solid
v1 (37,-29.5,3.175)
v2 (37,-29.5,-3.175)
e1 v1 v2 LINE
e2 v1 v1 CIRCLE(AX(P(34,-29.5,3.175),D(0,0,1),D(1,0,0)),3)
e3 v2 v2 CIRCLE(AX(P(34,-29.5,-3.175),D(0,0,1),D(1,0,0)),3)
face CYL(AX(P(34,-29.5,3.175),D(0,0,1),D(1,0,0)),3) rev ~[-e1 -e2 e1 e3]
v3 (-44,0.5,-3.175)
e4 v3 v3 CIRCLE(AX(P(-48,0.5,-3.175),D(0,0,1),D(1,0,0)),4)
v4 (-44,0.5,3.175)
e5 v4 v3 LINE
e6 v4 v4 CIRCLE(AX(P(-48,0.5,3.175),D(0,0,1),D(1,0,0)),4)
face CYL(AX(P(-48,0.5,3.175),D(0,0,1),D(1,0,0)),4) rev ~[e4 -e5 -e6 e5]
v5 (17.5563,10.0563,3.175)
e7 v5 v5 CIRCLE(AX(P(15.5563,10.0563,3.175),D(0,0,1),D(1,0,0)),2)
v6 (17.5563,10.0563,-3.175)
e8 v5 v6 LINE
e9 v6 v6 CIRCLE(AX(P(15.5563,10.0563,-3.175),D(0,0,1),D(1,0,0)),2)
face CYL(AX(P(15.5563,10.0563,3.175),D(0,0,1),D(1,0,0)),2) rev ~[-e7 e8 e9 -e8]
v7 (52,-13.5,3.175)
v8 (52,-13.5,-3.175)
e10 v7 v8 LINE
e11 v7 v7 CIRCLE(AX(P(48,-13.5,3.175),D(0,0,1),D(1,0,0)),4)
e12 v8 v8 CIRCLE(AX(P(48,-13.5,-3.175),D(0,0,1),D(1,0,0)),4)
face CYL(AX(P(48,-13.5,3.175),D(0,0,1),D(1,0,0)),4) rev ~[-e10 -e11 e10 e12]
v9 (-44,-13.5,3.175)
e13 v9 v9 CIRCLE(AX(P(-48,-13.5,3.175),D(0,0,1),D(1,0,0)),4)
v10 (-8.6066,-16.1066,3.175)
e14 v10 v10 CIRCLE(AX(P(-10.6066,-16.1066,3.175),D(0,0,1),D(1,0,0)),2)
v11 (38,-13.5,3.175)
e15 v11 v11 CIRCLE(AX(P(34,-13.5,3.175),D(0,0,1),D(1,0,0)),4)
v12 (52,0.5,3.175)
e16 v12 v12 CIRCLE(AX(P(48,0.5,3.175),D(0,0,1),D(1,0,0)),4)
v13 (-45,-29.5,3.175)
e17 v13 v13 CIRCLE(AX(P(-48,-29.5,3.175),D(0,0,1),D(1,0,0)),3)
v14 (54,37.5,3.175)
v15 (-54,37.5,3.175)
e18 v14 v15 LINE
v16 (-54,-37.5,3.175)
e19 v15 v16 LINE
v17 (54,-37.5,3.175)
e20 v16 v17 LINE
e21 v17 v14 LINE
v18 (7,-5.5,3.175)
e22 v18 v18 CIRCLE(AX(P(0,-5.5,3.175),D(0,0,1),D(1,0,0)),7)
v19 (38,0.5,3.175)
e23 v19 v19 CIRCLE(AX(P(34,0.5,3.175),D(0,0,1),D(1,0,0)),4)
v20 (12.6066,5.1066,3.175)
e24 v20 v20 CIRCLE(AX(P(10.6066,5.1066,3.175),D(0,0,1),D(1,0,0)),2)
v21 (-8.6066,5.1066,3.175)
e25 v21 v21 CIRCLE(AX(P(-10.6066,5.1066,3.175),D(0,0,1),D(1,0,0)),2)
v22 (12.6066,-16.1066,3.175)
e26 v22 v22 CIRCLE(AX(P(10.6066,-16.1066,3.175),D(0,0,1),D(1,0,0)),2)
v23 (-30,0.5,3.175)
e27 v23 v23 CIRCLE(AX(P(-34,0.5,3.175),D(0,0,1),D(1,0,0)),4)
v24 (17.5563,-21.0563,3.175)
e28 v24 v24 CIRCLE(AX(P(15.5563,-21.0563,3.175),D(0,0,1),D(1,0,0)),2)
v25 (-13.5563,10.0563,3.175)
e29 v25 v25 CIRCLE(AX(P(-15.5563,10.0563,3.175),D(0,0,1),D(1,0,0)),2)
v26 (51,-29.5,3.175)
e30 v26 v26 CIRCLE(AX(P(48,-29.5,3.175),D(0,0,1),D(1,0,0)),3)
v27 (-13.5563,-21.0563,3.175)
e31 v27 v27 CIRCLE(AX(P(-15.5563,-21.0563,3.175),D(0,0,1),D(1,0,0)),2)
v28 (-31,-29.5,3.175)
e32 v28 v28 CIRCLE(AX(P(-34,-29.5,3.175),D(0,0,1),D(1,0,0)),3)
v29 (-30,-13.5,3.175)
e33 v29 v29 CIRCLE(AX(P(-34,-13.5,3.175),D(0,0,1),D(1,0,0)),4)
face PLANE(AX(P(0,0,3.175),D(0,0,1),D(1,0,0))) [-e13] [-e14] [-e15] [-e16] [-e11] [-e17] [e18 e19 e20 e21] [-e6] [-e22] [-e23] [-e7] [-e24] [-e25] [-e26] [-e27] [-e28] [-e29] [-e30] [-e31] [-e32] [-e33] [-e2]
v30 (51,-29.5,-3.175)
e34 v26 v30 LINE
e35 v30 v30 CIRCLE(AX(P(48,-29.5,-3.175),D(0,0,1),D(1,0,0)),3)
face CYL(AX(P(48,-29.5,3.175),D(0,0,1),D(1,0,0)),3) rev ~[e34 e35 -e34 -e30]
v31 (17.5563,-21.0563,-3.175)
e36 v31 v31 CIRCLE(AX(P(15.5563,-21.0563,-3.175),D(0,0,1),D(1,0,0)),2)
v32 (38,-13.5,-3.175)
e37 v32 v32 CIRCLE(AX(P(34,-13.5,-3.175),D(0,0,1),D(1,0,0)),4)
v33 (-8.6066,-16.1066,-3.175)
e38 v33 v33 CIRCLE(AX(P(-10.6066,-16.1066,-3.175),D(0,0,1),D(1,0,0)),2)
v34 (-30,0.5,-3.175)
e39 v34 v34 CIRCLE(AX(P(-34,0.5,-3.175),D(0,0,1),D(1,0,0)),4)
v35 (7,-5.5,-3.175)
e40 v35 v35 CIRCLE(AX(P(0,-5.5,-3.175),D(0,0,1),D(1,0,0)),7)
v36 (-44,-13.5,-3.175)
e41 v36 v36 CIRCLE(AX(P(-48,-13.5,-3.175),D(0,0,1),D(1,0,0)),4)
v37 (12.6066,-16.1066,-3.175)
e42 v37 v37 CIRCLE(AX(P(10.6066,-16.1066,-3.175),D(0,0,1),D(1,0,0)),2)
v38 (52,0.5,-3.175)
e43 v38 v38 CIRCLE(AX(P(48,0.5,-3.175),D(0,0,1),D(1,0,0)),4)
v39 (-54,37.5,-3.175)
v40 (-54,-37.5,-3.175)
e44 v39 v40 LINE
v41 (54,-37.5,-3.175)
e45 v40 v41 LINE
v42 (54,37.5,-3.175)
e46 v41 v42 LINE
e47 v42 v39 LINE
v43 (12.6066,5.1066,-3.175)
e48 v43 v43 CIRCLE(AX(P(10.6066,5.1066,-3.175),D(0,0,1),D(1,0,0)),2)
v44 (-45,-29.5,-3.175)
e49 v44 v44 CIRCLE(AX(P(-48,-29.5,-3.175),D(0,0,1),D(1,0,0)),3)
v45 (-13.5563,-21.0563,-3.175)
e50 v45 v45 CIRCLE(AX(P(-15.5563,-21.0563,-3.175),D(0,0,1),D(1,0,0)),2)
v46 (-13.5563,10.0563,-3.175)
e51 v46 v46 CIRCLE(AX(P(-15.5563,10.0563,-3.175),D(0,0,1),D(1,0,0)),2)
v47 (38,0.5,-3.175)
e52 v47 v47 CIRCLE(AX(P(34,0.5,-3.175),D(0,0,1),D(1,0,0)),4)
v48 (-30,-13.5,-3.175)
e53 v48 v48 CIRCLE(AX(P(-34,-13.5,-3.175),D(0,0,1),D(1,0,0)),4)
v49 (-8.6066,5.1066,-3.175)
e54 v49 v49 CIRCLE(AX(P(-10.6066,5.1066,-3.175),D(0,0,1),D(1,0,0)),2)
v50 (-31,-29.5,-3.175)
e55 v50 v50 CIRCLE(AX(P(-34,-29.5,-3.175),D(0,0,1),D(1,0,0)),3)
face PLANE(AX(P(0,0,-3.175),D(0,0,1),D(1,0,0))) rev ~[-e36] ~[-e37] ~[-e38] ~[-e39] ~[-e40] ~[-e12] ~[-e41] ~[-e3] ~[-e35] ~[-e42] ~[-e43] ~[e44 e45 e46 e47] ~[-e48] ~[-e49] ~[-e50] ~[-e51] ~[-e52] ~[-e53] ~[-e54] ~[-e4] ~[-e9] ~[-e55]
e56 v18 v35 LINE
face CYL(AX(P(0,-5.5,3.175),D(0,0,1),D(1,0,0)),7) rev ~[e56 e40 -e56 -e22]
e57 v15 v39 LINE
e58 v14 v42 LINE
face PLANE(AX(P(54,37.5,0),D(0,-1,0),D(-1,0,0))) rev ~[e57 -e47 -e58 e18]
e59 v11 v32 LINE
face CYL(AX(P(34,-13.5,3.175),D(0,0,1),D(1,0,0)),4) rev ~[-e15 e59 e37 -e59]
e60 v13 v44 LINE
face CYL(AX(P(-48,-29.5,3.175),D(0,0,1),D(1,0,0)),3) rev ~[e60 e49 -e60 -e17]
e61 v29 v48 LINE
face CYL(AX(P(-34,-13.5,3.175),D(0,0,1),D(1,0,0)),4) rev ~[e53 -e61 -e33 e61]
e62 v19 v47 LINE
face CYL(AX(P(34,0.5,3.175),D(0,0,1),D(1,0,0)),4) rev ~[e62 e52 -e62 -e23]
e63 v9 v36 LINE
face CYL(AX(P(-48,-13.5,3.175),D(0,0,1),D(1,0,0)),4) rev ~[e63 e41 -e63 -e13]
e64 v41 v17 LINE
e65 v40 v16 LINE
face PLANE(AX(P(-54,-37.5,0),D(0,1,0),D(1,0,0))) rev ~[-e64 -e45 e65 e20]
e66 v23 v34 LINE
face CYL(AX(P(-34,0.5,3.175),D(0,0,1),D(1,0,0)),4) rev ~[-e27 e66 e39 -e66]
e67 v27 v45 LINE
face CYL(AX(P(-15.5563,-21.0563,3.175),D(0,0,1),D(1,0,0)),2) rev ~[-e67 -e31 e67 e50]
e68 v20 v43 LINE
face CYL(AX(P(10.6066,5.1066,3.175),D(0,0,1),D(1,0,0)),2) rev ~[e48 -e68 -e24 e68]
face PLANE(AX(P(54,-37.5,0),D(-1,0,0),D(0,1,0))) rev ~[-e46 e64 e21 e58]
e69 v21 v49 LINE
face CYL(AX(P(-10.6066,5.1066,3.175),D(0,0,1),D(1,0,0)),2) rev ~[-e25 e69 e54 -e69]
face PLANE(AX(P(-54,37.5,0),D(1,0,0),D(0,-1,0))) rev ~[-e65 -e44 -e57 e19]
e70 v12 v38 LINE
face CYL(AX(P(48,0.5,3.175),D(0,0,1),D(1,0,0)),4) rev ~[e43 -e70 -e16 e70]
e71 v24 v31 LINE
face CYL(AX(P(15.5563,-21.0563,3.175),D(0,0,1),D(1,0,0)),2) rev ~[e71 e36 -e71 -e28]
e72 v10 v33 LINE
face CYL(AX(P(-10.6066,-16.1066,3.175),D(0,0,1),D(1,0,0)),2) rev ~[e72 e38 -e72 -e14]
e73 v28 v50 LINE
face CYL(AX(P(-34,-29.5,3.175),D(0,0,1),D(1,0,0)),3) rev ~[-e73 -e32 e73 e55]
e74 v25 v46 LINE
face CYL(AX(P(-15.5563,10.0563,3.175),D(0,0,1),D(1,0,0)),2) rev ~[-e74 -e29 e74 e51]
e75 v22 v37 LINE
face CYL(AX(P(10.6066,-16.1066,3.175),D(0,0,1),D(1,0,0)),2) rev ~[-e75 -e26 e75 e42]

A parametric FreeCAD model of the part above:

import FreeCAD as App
import Part
import Sketcher
Q = App.Units.Quantity


def add_polygon(sketch, points):
    """Adds a closed chain of lines whose ends are joined by coincident constraints."""
    first, n = sketch.GeometryCount, len(points)
    for a, b in zip(points, points[1:] + points[:1]):
        sketch.addGeometry(Part.LineSegment(App.Vector(*a, 0), App.Vector(*b, 0)), False)
    for i in range(n):
        sketch.addConstraint(Sketcher.Constraint("Coincident", first + i, 2, first + (i + 1) % n, 1))

doc = App.newDocument("Part")
params = doc.addObject("Spreadsheet::Sheet", "Params")
for row, (alias, value) in enumerate([
    ("sketch1_width", "108 mm"),
    ("sketch1_height", "75 mm"),
    ("pad1_length", "6.35 mm"),
    ("sketch2_diameter", "14 mm"),
    ("sketch2_diameter2", "4 mm"),
    ("sketch3_diameter", "6 mm"),
    ("sketch3_diameter2", "8 mm"),
], start=1):
    params.set(f"A{row}", alias)
    params.set(f"B{row}", "=" + value)
    params.setAlias(f"B{row}", alias)

body = doc.addObject("PartDesign::Body", "Body")

# Sketch on XY plane
sketch1 = body.newObject("Sketcher::SketchObject", "Sketch")
sketch1.AttachmentSupport = (doc.getObject("XY_Plane"), [""])
sketch1.MapMode = "FlatFace"
add_polygon(sketch1, [(-54, 38), (-54, -38), (54, -38), (54, 38)])  # lines 0-3
sketch1.addConstraint(Sketcher.Constraint("Vertical", 0))
sketch1.addConstraint(Sketcher.Constraint("Horizontal", 1))
sketch1.addConstraint(Sketcher.Constraint("Vertical", 2))
sketch1.addConstraint(Sketcher.Constraint("Horizontal", 3))
sketch1.addConstraint(Sketcher.Constraint("Symmetric", 0, 2, 2, 2, -1, 1))
sketch1.addConstraint(Sketcher.Constraint("DistanceX", 1, 1, 1, 2, Q("108 mm")))
sketch1.addConstraint(Sketcher.Constraint("DistanceY", 0, 2, 0, 1, Q("75 mm")))
sketch1.setExpression("Constraints[9]", "Params.sketch1_width")
sketch1.setExpression("Constraints[10]", "Params.sketch1_height")
pad1 = body.newObject("PartDesign::Pad", "Pad")
pad1.Profile = sketch1
pad1.setExpression("Length", "Params.pad1_length")
pad1.Midplane = True

# Sketch on XY plane
sketch2 = body.newObject("Sketcher::SketchObject", "Sketch001")
sketch2.AttachmentSupport = (doc.getObject("XY_Plane"), [""])
sketch2.MapMode = "FlatFace"
sketch2.AttachmentOffset = App.Placement(App.Vector(0, 0, 3.175), App.Rotation())
sketch2.addGeometry(Part.Circle(App.Vector(0, -5.5, 0), App.Vector(0, 0, 1), 7), False)
sketch2.addGeometry(Part.Circle(App.Vector(-10.6, 5.1, 0), App.Vector(0, 0, 1), 2), False)
sketch2.addGeometry(Part.Circle(App.Vector(-10.6, -16.1, 0), App.Vector(0, 0, 1), 2), False)
sketch2.addGeometry(Part.Circle(App.Vector(10.6, -16.1, 0), App.Vector(0, 0, 1), 2), False)
sketch2.addGeometry(Part.Circle(App.Vector(10.6, 5.1, 0), App.Vector(0, 0, 1), 2), False)
sketch2.addGeometry(Part.Circle(App.Vector(-15.6, 10.1, 0), App.Vector(0, 0, 1), 2), False)
sketch2.addGeometry(Part.Circle(App.Vector(-15.6, -21.1, 0), App.Vector(0, 0, 1), 2), False)
sketch2.addGeometry(Part.Circle(App.Vector(15.6, -21.1, 0), App.Vector(0, 0, 1), 2), False)
sketch2.addGeometry(Part.Circle(App.Vector(15.6, 10.1, 0), App.Vector(0, 0, 1), 2), False)
sketch2.addConstraint(Sketcher.Constraint("Equal", 1, 2))
sketch2.addConstraint(Sketcher.Constraint("Equal", 2, 3))
sketch2.addConstraint(Sketcher.Constraint("Equal", 3, 4))
sketch2.addConstraint(Sketcher.Constraint("Equal", 4, 5))
sketch2.addConstraint(Sketcher.Constraint("Equal", 5, 6))
sketch2.addConstraint(Sketcher.Constraint("Equal", 6, 7))
sketch2.addConstraint(Sketcher.Constraint("Equal", 7, 8))
sketch2.addConstraint(Sketcher.Constraint("Symmetric", 2, 3, 3, 3, -2))
sketch2.addConstraint(Sketcher.Constraint("Symmetric", 1, 3, 4, 3, -2))
sketch2.addConstraint(Sketcher.Constraint("Symmetric", 6, 3, 7, 3, -2))
sketch2.addConstraint(Sketcher.Constraint("Symmetric", 5, 3, 8, 3, -2))
sketch2.addConstraint(Sketcher.Constraint("PointOnObject", 0, 3, -2))
sketch2.addConstraint(Sketcher.Constraint("Vertical", 1, 3, 2, 3))
sketch2.addConstraint(Sketcher.Constraint("Vertical", 5, 3, 6, 3))
sketch2.addConstraint(Sketcher.Constraint("Diameter", 0, Q("14 mm")))
sketch2.addConstraint(Sketcher.Constraint("Diameter", 1, Q("4 mm")))
sketch2.addConstraint(Sketcher.Constraint("DistanceY", 0, 3, -1, 1, Q("5.5 mm")))
sketch2.addConstraint(Sketcher.Constraint("DistanceY", 2, 3, 5, 3, Q("26.163 mm")))
sketch2.addConstraint(Sketcher.Constraint("DistanceX", 5, 3, 4, 3, Q("26.163 mm")))
sketch2.addConstraint(Sketcher.Constraint("DistanceY", 6, 3, 1, 3, Q("26.163 mm")))
sketch2.addConstraint(Sketcher.Constraint("DistanceX", 1, 3, -1, 1, Q("10.6066 mm")))
sketch2.addConstraint(Sketcher.Constraint("DistanceY", -1, 1, 1, 3, Q("5.1066 mm")))
sketch2.addConstraint(Sketcher.Constraint("DistanceY", 2, 3, -1, 1, Q("16.1066 mm")))
sketch2.setExpression("Constraints[14]", "Params.sketch2_diameter")
sketch2.setExpression("Constraints[15]", "Params.sketch2_diameter2")
pocket1 = body.newObject("PartDesign::Pocket", "Pocket")
pocket1.Profile = sketch2
pocket1.Type = "ThroughAll"

# Sketch on XY plane
sketch3 = body.newObject("Sketcher::SketchObject", "Sketch002")
sketch3.AttachmentSupport = (doc.getObject("XY_Plane"), [""])
sketch3.MapMode = "FlatFace"
sketch3.AttachmentOffset = App.Placement(App.Vector(0, 0, 3.175), App.Rotation())
sketch3.addGeometry(Part.Circle(App.Vector(-48, -29.5, 0), App.Vector(0, 0, 1), 3), False)
sketch3.addGeometry(Part.Circle(App.Vector(-34, -29.5, 0), App.Vector(0, 0, 1), 3), False)
sketch3.addGeometry(Part.Circle(App.Vector(-34, -13.5, 0), App.Vector(0, 0, 1), 4), False)
sketch3.addGeometry(Part.Circle(App.Vector(-48, -13.5, 0), App.Vector(0, 0, 1), 4), False)
sketch3.addGeometry(Part.Circle(App.Vector(-34, 0.5, 0), App.Vector(0, 0, 1), 4), False)
sketch3.addGeometry(Part.Circle(App.Vector(-48, 0.5, 0), App.Vector(0, 0, 1), 4), False)
sketch3.addGeometry(Part.Circle(App.Vector(48, -29.5, 0), App.Vector(0, 0, 1), 3), False)
sketch3.addGeometry(Part.Circle(App.Vector(34, -29.5, 0), App.Vector(0, 0, 1), 3), False)
sketch3.addGeometry(Part.Circle(App.Vector(34, -13.5, 0), App.Vector(0, 0, 1), 4), False)
sketch3.addGeometry(Part.Circle(App.Vector(48, -13.5, 0), App.Vector(0, 0, 1), 4), False)
sketch3.addGeometry(Part.Circle(App.Vector(34, 0.5, 0), App.Vector(0, 0, 1), 4), False)
sketch3.addGeometry(Part.Circle(App.Vector(48, 0.5, 0), App.Vector(0, 0, 1), 4), False)
sketch3.addConstraint(Sketcher.Constraint("Equal", 0, 1))
sketch3.addConstraint(Sketcher.Constraint("Equal", 2, 3))
sketch3.addConstraint(Sketcher.Constraint("Equal", 3, 4))
sketch3.addConstraint(Sketcher.Constraint("Equal", 4, 5))
sketch3.addConstraint(Sketcher.Constraint("Equal", 1, 6))
sketch3.addConstraint(Sketcher.Constraint("Equal", 6, 7))
sketch3.addConstraint(Sketcher.Constraint("Equal", 5, 8))
sketch3.addConstraint(Sketcher.Constraint("Equal", 8, 9))
sketch3.addConstraint(Sketcher.Constraint("Equal", 9, 10))
sketch3.addConstraint(Sketcher.Constraint("Equal", 10, 11))
sketch3.addConstraint(Sketcher.Constraint("Symmetric", 0, 3, 6, 3, -2))
sketch3.addConstraint(Sketcher.Constraint("Symmetric", 1, 3, 7, 3, -2))
sketch3.addConstraint(Sketcher.Constraint("Symmetric", 2, 3, 8, 3, -2))
sketch3.addConstraint(Sketcher.Constraint("Symmetric", 3, 3, 9, 3, -2))
sketch3.addConstraint(Sketcher.Constraint("Symmetric", 4, 3, 10, 3, -2))
sketch3.addConstraint(Sketcher.Constraint("Symmetric", 5, 3, 11, 3, -2))
sketch3.addConstraint(Sketcher.Constraint("Horizontal", 0, 3, 1, 3))
sketch3.addConstraint(Sketcher.Constraint("Horizontal", 2, 3, 3, 3))
sketch3.addConstraint(Sketcher.Constraint("Horizontal", 4, 3, 5, 3))
sketch3.addConstraint(Sketcher.Constraint("Vertical", 1, 3, 2, 3))
sketch3.addConstraint(Sketcher.Constraint("Vertical", 0, 3, 3, 3))
sketch3.addConstraint(Sketcher.Constraint("Vertical", 2, 3, 4, 3))
sketch3.addConstraint(Sketcher.Constraint("Vertical", 3, 3, 5, 3))
sketch3.addConstraint(Sketcher.Constraint("Diameter", 0, Q("6 mm")))
sketch3.addConstraint(Sketcher.Constraint("Diameter", 2, Q("8 mm")))
sketch3.addConstraint(Sketcher.Constraint("DistanceX", 0, 3, 1, 3, Q("14 mm")))
sketch3.addConstraint(Sketcher.Constraint("DistanceY", 1, 3, 2, 3, Q("16 mm")))
sketch3.addConstraint(Sketcher.Constraint("DistanceY", 2, 3, 4, 3, Q("14 mm")))
sketch3.addConstraint(Sketcher.Constraint("DistanceX", 0, 3, -1, 1, Q("48 mm")))
sketch3.addConstraint(Sketcher.Constraint("DistanceY", 0, 3, -1, 1, Q("29.5 mm")))
sketch3.setExpression("Constraints[23]", "Params.sketch3_diameter")
sketch3.setExpression("Constraints[24]", "Params.sketch3_diameter2")
pocket2 = body.newObject("PartDesign::Pocket", "Pocket001")
pocket2.Profile = sketch3
pocket2.Type = "ThroughAll"

doc.recompute()
